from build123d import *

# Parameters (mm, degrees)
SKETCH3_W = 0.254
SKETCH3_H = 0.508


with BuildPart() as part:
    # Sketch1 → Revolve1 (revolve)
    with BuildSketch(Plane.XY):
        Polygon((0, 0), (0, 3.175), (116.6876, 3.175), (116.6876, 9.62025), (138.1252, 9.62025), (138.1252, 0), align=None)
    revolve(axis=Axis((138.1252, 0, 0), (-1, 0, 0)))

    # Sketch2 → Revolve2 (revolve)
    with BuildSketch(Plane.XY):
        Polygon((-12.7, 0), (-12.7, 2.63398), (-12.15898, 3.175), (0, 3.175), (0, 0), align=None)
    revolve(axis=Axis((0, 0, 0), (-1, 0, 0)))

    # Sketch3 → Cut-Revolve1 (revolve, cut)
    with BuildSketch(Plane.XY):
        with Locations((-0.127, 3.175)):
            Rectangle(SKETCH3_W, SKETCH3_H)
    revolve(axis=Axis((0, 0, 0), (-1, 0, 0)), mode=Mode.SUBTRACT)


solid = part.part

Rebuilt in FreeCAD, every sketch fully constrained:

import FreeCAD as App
import Part
import Sketcher
from FreeCAD import Vector
Q = App.Units.Quantity

doc = App.newDocument("Part")
body = doc.addObject("PartDesign::Body", "Body")

sketch1 = body.newObject("Sketcher::SketchObject", "Sketch")
sketch1.AttachmentSupport = (doc.getObject("XY_Plane"), [""])
sketch1.MapMode = "FlatFace"
sketch1.addGeometry([
    Part.LineSegment(Vector(0, 3.2, 0), Vector(0, 0, 0)),
    Part.LineSegment(Vector(0, 0, 0), Vector(138.1, 0, 0)),
    Part.LineSegment(Vector(138.1, 0, 0), Vector(138.1, 9.6, 0)),
    Part.LineSegment(Vector(138.1, 9.6, 0), Vector(116.7, 9.6, 0)),
    Part.LineSegment(Vector(116.7, 9.6, 0), Vector(116.7, 3.2, 0)),
    Part.LineSegment(Vector(116.7, 3.2, 0), Vector(0, 3.2, 0)),
], False)
sketch1.addConstraint([
    Sketcher.Constraint("Coincident", 0, 2, 1, 1),
    Sketcher.Constraint("Coincident", 1, 2, 2, 1),
    Sketcher.Constraint("Coincident", 2, 2, 3, 1),
    Sketcher.Constraint("Coincident", 3, 2, 4, 1),
    Sketcher.Constraint("Coincident", 4, 2, 5, 1),
    Sketcher.Constraint("Coincident", 5, 2, 0, 1),
    Sketcher.Constraint("Vertical", 0),
    Sketcher.Constraint("Horizontal", 1),
    Sketcher.Constraint("Vertical", 2),
    Sketcher.Constraint("Horizontal", 3),
    Sketcher.Constraint("Vertical", 4),
    Sketcher.Constraint("Horizontal", 5),
    Sketcher.Constraint("Coincident", 0, 2, -1, 1),
    Sketcher.Constraint("DistanceX", 1, 1, 1, 2, Q("5.438 in")),
    Sketcher.Constraint("DistanceX", 3, 2, 3, 1, Q("0.844 in")),
    Sketcher.Constraint("DistanceY", 0, 2, 0, 1, Q("0.125 in")),
    Sketcher.Constraint("DistanceY", 2, 1, 2, 2, 9.62025),
])
revolution = body.newObject("PartDesign::Revolution", "Revolution")
revolution.Profile = sketch1
revolution.ReferenceAxis = (sketch1, ["H_Axis"])
revolution.Angle = 360

sketch2 = body.newObject("Sketcher::SketchObject", "Sketch001")
sketch2.AttachmentSupport = (doc.getObject("XY_Plane"), [""])
sketch2.MapMode = "FlatFace"
sketch2.addGeometry([
    Part.LineSegment(Vector(-12.7, 2.6, 0), Vector(-12.7, 0, 0)),
    Part.LineSegment(Vector(-12.7, 0, 0), Vector(0, 0, 0)),
    Part.LineSegment(Vector(0, 0, 0), Vector(0, 3.2, 0)),
    Part.LineSegment(Vector(0, 3.2, 0), Vector(-12.2, 3.2, 0)),
    Part.LineSegment(Vector(-12.2, 3.2, 0), Vector(-12.7, 2.6, 0)),
], False)
sketch2.addConstraint([
    Sketcher.Constraint("Coincident", 0, 2, 1, 1),
    Sketcher.Constraint("Coincident", 1, 2, 2, 1),
    Sketcher.Constraint("Coincident", 2, 2, 3, 1),
    Sketcher.Constraint("Coincident", 3, 2, 4, 1),
    Sketcher.Constraint("Coincident", 4, 2, 0, 1),
    Sketcher.Constraint("Vertical", 0),
    Sketcher.Constraint("Horizontal", 1),
    Sketcher.Constraint("Vertical", 2),
    Sketcher.Constraint("Horizontal", 3),
    Sketcher.Constraint("Coincident", 1, 2, -1, 1),
    Sketcher.Constraint("DistanceX", 1, 1, 1, 2, Q("0.5 in")),
    Sketcher.Constraint("Angle", 4, Q("-135 deg")),
    Sketcher.Constraint("DistanceY", 2, 1, 2, 2, Q("0.125 in")),
    Sketcher.Constraint("DistanceX", 3, 2, 3, 1, Q("0.4787 in")),
])
revolution2 = body.newObject("PartDesign::Revolution", "Revolution001")
revolution2.Profile = sketch2
revolution2.ReferenceAxis = (sketch2, ["H_Axis"])
revolution2.Angle = 360

sketch3 = body.newObject("Sketcher::SketchObject", "Sketch002")
sketch3.AttachmentSupport = (doc.getObject("XY_Plane"), [""])
sketch3.MapMode = "FlatFace"
sketch3.addGeometry([
    Part.LineSegment(Vector(-0.25, 3.43, 0), Vector(-0.25, 2.92, 0)),
    Part.LineSegment(Vector(-0.25, 2.92, 0), Vector(0, 2.92, 0)),
    Part.LineSegment(Vector(0, 2.92, 0), Vector(0, 3.43, 0)),
    Part.LineSegment(Vector(0, 3.43, 0), Vector(-0.25, 3.43, 0)),
], False)
sketch3.addConstraint([
    Sketcher.Constraint("Coincident", 0, 2, 1, 1),
    Sketcher.Constraint("Coincident", 1, 2, 2, 1),
    Sketcher.Constraint("Coincident", 2, 2, 3, 1),
    Sketcher.Constraint("Coincident", 3, 2, 0, 1),
    Sketcher.Constraint("Vertical", 0),
    Sketcher.Constraint("Horizontal", 1),
    Sketcher.Constraint("Vertical", 2),
    Sketcher.Constraint("Horizontal", 3),
    Sketcher.Constraint("PointOnObject", 1, 2, -2),
    Sketcher.Constraint("DistanceX", 1, 1, 1, 2, Q("0.01 in")),
    Sketcher.Constraint("DistanceY", 0, 2, 0, 1, Q("0.02 in")),
    Sketcher.Constraint("DistanceY", -1, 1, 0, 2, Q("0.115 in")),
])
groove = body.newObject("PartDesign::Groove", "Groove")
groove.Profile = sketch3
groove.ReferenceAxis = (sketch3, ["H_Axis"])
groove.Angle = 360

doc.recompute()
